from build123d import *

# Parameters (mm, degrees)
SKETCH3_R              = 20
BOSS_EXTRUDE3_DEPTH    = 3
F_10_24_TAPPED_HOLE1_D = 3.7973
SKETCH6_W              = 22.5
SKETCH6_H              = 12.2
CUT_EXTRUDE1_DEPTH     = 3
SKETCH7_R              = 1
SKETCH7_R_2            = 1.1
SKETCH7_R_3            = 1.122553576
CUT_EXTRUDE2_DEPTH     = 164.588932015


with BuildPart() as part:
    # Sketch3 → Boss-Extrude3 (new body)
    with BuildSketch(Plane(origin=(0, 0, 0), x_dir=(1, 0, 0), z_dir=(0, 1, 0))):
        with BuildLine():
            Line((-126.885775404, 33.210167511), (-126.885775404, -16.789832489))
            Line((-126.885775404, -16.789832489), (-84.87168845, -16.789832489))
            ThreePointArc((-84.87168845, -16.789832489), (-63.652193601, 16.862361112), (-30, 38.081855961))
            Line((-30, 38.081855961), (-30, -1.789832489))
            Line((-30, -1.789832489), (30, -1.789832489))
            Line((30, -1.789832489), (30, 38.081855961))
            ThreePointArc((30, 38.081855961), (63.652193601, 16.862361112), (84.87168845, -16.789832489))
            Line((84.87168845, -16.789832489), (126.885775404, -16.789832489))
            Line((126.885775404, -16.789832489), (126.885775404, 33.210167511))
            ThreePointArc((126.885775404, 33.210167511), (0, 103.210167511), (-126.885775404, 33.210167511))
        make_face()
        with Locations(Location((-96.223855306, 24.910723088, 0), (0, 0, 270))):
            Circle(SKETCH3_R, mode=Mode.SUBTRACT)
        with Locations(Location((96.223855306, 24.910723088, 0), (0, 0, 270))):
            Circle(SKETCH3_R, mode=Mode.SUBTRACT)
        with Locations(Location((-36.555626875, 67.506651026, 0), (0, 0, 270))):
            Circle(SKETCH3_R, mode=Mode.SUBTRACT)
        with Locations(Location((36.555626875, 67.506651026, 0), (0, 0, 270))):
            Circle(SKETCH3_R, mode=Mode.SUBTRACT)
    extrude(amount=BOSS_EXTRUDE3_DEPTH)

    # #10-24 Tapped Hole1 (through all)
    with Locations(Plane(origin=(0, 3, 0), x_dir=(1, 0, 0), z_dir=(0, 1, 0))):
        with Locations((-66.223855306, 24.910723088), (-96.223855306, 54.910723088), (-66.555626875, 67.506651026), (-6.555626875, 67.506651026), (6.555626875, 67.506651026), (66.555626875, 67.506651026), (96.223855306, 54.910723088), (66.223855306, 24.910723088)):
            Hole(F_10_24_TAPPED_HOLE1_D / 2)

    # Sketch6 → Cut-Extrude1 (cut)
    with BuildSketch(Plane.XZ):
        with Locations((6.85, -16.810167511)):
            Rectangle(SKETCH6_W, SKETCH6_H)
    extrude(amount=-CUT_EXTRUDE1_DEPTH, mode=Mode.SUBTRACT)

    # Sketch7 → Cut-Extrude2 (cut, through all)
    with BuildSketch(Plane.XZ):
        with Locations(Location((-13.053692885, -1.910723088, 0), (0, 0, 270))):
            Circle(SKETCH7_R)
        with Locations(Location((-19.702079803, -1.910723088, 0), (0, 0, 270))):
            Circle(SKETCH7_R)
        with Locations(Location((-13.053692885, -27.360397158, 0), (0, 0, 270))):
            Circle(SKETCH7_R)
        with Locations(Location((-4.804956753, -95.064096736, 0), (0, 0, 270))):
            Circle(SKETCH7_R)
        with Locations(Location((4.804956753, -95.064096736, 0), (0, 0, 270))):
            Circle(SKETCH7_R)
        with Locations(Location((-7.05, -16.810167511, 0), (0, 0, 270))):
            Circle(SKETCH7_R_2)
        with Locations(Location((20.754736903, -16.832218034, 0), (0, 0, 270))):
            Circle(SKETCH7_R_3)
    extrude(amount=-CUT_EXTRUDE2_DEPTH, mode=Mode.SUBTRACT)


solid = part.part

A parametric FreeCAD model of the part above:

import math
import FreeCAD as App
import Part
import Sketcher
from FreeCAD import Vector
Q = App.Units.Quantity


def add_polygon(sketch, points):
    """Adds a closed chain of lines whose ends are joined by coincident constraints."""
    first, n = sketch.GeometryCount, len(points)
    for a, b in zip(points, points[1:] + points[:1]):
        sketch.addGeometry(Part.LineSegment(App.Vector(*a, 0), App.Vector(*b, 0)), False)
    for i in range(n):
        sketch.addConstraint(Sketcher.Constraint("Coincident", first + i, 2, first + (i + 1) % n, 1))

doc = App.newDocument("Part")
params = doc.addObject("Spreadsheet::Sheet", "Params")
for row, (alias, value) in enumerate([
    ("sketch1_diameter", "40 mm"),
    ("sketch1_radius", "150 mm"),
    ("sketch1_width", "60 mm"),
    ("sketch1_height", "50 mm"),
    ("pad1_length", "3 mm"),
    ("hole_diameter", "3.7973 mm"),
    ("sketch3_width", "22.5 mm"),
    ("sketch3_height", "12.2 mm"),
    ("pocket1_length", "3 mm"),
    ("sketch4_diameter", "2 mm"),
    ("sketch4_diameter2", "2.2 mm"),
], start=1):
    params.set(f"A{row}", alias)
    params.set(f"B{row}", "=" + value)
    params.setAlias(f"B{row}", alias)

body = doc.addObject("PartDesign::Body", "Body")

sketch1 = body.newObject("Sketcher::SketchObject", "Sketch")
sketch1.AttachmentSupport = (doc.getObject("XZ_Plane"), [""])
sketch1.MapMode = "FlatFace"
sketch1.addGeometry(Part.LineSegment(Vector(-127, -33, 0), Vector(-127, 17, 0)), False)
sketch1.addGeometry(Part.LineSegment(Vector(-127, 17, 0), Vector(-85, 17, 0)), False)
sketch1.addGeometry(Part.ArcOfCircle(Part.Circle(Vector(0, 47, 0), Vector(0, 0, 1), 90), math.radians(-161), math.radians(-109)), False)
sketch1.addGeometry(Part.LineSegment(Vector(-30, -38, 0), Vector(-30, 2, 0)), False)
sketch1.addGeometry(Part.LineSegment(Vector(-30, 2, 0), Vector(30, 2, 0)), False)
sketch1.addGeometry(Part.LineSegment(Vector(30, 2, 0), Vector(30, -38, 0)), False)
sketch1.addGeometry(Part.ArcOfCircle(Part.Circle(Vector(0, 47, 0), Vector(0, 0, 1), 90), math.radians(-71), math.radians(-19)), False)
sketch1.addGeometry(Part.LineSegment(Vector(85, 17, 0), Vector(127, 17, 0)), False)
sketch1.addGeometry(Part.LineSegment(Vector(127, 17, 0), Vector(127, -33, 0)), False)
sketch1.addGeometry(Part.ArcOfCircle(Part.Circle(Vector(0, 47, 0), Vector(0, 0, 1), 150), math.radians(-148), math.radians(-32)), False)
sketch1.addGeometry(Part.Circle(Vector(-96, -25, 0), Vector(0, 0, 1), 20), False)
sketch1.addGeometry(Part.Circle(Vector(96, -25, 0), Vector(0, 0, 1), 20), False)
sketch1.addGeometry(Part.Circle(Vector(-37, -68, 0), Vector(0, 0, 1), 20), False)
sketch1.addGeometry(Part.Circle(Vector(37, -68, 0), Vector(0, 0, 1), 20), False)
sketch1.addConstraint(Sketcher.Constraint("Coincident", 0, 2, 1, 1))
sketch1.addConstraint(Sketcher.Constraint("Coincident", 1, 2, 2, 1))
sketch1.addConstraint(Sketcher.Constraint("Coincident", 2, 2, 3, 1))
sketch1.addConstraint(Sketcher.Constraint("Coincident", 3, 2, 4, 1))
sketch1.addConstraint(Sketcher.Constraint("Coincident", 4, 2, 5, 1))
sketch1.addConstraint(Sketcher.Constraint("Coincident", 5, 2, 6, 1))
sketch1.addConstraint(Sketcher.Constraint("Coincident", 6, 2, 7, 1))
sketch1.addConstraint(Sketcher.Constraint("Coincident", 7, 2, 8, 1))
sketch1.addConstraint(Sketcher.Constraint("Coincident", 8, 2, 9, 2))
sketch1.addConstraint(Sketcher.Constraint("Coincident", 9, 1, 0, 1))
sketch1.addConstraint(Sketcher.Constraint("Vertical", 0))
sketch1.addConstraint(Sketcher.Constraint("Horizontal", 1))
sketch1.addConstraint(Sketcher.Constraint("Vertical", 3))
sketch1.addConstraint(Sketcher.Constraint("Horizontal", 4))
sketch1.addConstraint(Sketcher.Constraint("Vertical", 5))
sketch1.addConstraint(Sketcher.Constraint("Horizontal", 7))
sketch1.addConstraint(Sketcher.Constraint("Vertical", 8))
sketch1.addConstraint(Sketcher.Constraint("Coincident", 6, 3, 2, 3))
sketch1.addConstraint(Sketcher.Constraint("Coincident", 9, 3, 2, 3))
sketch1.addConstraint(Sketcher.Constraint("Equal", 2, 6))
sketch1.addConstraint(Sketcher.Constraint("Equal", 10, 11))
sketch1.addConstraint(Sketcher.Constraint("Equal", 11, 12))
sketch1.addConstraint(Sketcher.Constraint("Equal", 12, 13))
sketch1.addConstraint(Sketcher.Constraint("Symmetric", 10, 3, 11, 3, -2))
sketch1.addConstraint(Sketcher.Constraint("Symmetric", 12, 3, 13, 3, -2))
sketch1.addConstraint(Sketcher.Constraint("Symmetric", 2, 2, 5, 2, -2))
sketch1.addConstraint(Sketcher.Constraint("Symmetric", 0, 2, 7, 2, -2))
sketch1.addConstraint(Sketcher.Constraint("Diameter", 10, Q("40 mm")))
sketch1.addConstraint(Sketcher.Constraint("Radius", 9, Q("150 mm")))
sketch1.addConstraint(Sketcher.Constraint("DistanceX", 4, 1, 4, 2, Q("60 mm")))
sketch1.addConstraint(Sketcher.Constraint("DistanceY", 0, 1, 0, 2, Q("50 mm")))
sketch1.addConstraint(Sketcher.Constraint("DistanceY", 0, 2, 2, 3, Q("30 mm")))
sketch1.addConstraint(Sketcher.Constraint("DistanceY", 3, 2, 2, 3, Q("45 mm")))
sketch1.addConstraint(Sketcher.Constraint("Radius", 2, Q("90.017795 mm")))
sketch1.addConstraint(Sketcher.Constraint("DistanceY", 12, 3, -1, 1, Q("67.506651 mm")))
sketch1.addConstraint(Sketcher.Constraint("DistanceX", 10, 3, 11, 3, Q("192.447711 mm")))
sketch1.addConstraint(Sketcher.Constraint("DistanceX", 10, 3, 12, 3, Q("59.668228 mm")))
sketch1.addConstraint(Sketcher.Constraint("DistanceY", -1, 1, 2, 3, Q("46.789832 mm")))
sketch1.addConstraint(Sketcher.Constraint("DistanceY", 10, 3, -1, 1, Q("24.910723 mm")))
sketch1.setExpression("Constraints[27]", "Params.sketch1_diameter")
sketch1.setExpression("Constraints[28]", "Params.sketch1_radius")
sketch1.setExpression("Constraints[29]", "Params.sketch1_width")
sketch1.setExpression("Constraints[30]", "Params.sketch1_height")
pad1 = body.newObject("PartDesign::Pad", "Pad")
pad1.Profile = sketch1
pad1.setExpression("Length", "Params.pad1_length")
pad1.Reversed = True

sketch2 = body.newObject("Sketcher::SketchObject", "Sketch001")
sketch2.AttachmentSupport = (doc.getObject("XZ_Plane"), [""])
sketch2.MapMode = "FlatFace"
sketch2.AttachmentOffset = App.Placement(Vector(0, 0, -3), App.Rotation())
sketch2.addGeometry(Part.Circle(Vector(-66.2, -24.9, 0), Vector(0, 0, 1), 1.9), False)
sketch2.addGeometry(Part.Circle(Vector(-96.2, -54.9, 0), Vector(0, 0, 1), 1.9), False)
sketch2.addGeometry(Part.Circle(Vector(-66.6, -67.5, 0), Vector(0, 0, 1), 1.9), False)
sketch2.addGeometry(Part.Circle(Vector(-6.6, -67.5, 0), Vector(0, 0, 1), 1.9), False)
sketch2.addGeometry(Part.Circle(Vector(6.6, -67.5, 0), Vector(0, 0, 1), 1.9), False)
sketch2.addGeometry(Part.Circle(Vector(66.6, -67.5, 0), Vector(0, 0, 1), 1.9), False)
sketch2.addGeometry(Part.Circle(Vector(96.2, -54.9, 0), Vector(0, 0, 1), 1.9), False)
sketch2.addGeometry(Part.Circle(Vector(66.2, -24.9, 0), Vector(0, 0, 1), 1.9), False)
sketch2.addConstraint(Sketcher.Constraint("Equal", 0, 1))
sketch2.addConstraint(Sketcher.Constraint("Equal", 1, 2))
sketch2.addConstraint(Sketcher.Constraint("Equal", 2, 3))
sketch2.addConstraint(Sketcher.Constraint("Equal", 3, 4))
sketch2.addConstraint(Sketcher.Constraint("Equal", 4, 5))
sketch2.addConstraint(Sketcher.Constraint("Equal", 5, 6))
sketch2.addConstraint(Sketcher.Constraint("Equal", 6, 7))
sketch2.addConstraint(Sketcher.Constraint("Symmetric", 3, 3, 4, 3, -2))
sketch2.addConstraint(Sketcher.Constraint("Symmetric", 2, 3, 5, 3, -2))
sketch2.addConstraint(Sketcher.Constraint("Symmetric", 1, 3, 6, 3, -2))
sketch2.addConstraint(Sketcher.Constraint("Symmetric", 0, 3, 7, 3, -2))
sketch2.addConstraint(Sketcher.Constraint("Horizontal", 2, 3, 3, 3))
sketch2.addConstraint(Sketcher.Constraint("DistanceX", 1, 3, 0, 3, Q("30 mm")))
sketch2.addConstraint(Sketcher.Constraint("DistanceY", 1, 3, 0, 3, Q("30 mm")))
sketch2.addConstraint(Sketcher.Constraint("DistanceX", 2, 3, 3, 3, Q("60 mm")))
sketch2.addConstraint(Sketcher.Constraint("Diameter", 0, Q("3.7973 mm")))
sketch2.addConstraint(Sketcher.Constraint("DistanceY", 2, 3, -1, 1, Q("67.506651 mm")))
sketch2.addConstraint(Sketcher.Constraint("DistanceX", 1, 3, 2, 3, Q("29.668228 mm")))
sketch2.addConstraint(Sketcher.Constraint("DistanceX", 0, 3, 6, 3, Q("162.447711 mm")))
sketch2.addConstraint(Sketcher.Constraint("DistanceY", 0, 3, -1, 1, Q("24.910723 mm")))
doc.recompute()
hole = body.newObject("PartDesign::Hole", "Hole")
hole.Profile = sketch2
hole.ThreadType = "None"
hole.setExpression("Diameter", "Params.hole_diameter")
hole.DepthType = "ThroughAll"
hole.Reversed = True

sketch3 = body.newObject("Sketcher::SketchObject", "Sketch002")
sketch3.AttachmentSupport = (doc.getObject("XZ_Plane"), [""])
sketch3.MapMode = "FlatFace"
add_polygon(sketch3, [(-4, -11), (-4, -23), (18, -23), (18, -11)])
sketch3.addConstraint(Sketcher.Constraint("Vertical", 0))
sketch3.addConstraint(Sketcher.Constraint("Horizontal", 1))
sketch3.addConstraint(Sketcher.Constraint("Vertical", 2))
sketch3.addConstraint(Sketcher.Constraint("Horizontal", 3))
sketch3.addConstraint(Sketcher.Constraint("DistanceX", 1, 1, 1, 2, Q("22.5 mm")))
sketch3.addConstraint(Sketcher.Constraint("DistanceY", 0, 2, 0, 1, Q("12.2 mm")))
sketch3.addConstraint(Sketcher.Constraint("DistanceX", 0, 2, -1, 1, Q("4.4 mm")))
sketch3.addConstraint(Sketcher.Constraint("DistanceY", 0, 2, -1, 1, Q("22.910168 mm")))
sketch3.setExpression("Constraints[8]", "Params.sketch3_width")
sketch3.setExpression("Constraints[9]", "Params.sketch3_height")
pocket1 = body.newObject("PartDesign::Pocket", "Pocket")
pocket1.Profile = sketch3
pocket1.setExpression("Length", "Params.pocket1_length")

sketch4 = body.newObject("Sketcher::SketchObject", "Sketch003")
sketch4.AttachmentSupport = (doc.getObject("XZ_Plane"), [""])
sketch4.MapMode = "FlatFace"
sketch4.addGeometry(Part.Circle(Vector(-13.1, -1.9, 0), Vector(0, 0, 1), 1), False)
sketch4.addGeometry(Part.Circle(Vector(-19.7, -1.9, 0), Vector(0, 0, 1), 1), False)
sketch4.addGeometry(Part.Circle(Vector(-13.1, -27.4, 0), Vector(0, 0, 1), 1), False)
sketch4.addGeometry(Part.Circle(Vector(-4.8, -95.1, 0), Vector(0, 0, 1), 1), False)
sketch4.addGeometry(Part.Circle(Vector(4.8, -95.1, 0), Vector(0, 0, 1), 1), False)
sketch4.addGeometry(Part.Circle(Vector(-7, -16.8, 0), Vector(0, 0, 1), 1.1), False)
sketch4.addGeometry(Part.Circle(Vector(20.8, -16.8, 0), Vector(0, 0, 1), 1.1), False)
sketch4.addConstraint(Sketcher.Constraint("Equal", 0, 1))
sketch4.addConstraint(Sketcher.Constraint("Equal", 1, 2))
sketch4.addConstraint(Sketcher.Constraint("Equal", 2, 3))
sketch4.addConstraint(Sketcher.Constraint("Equal", 3, 4))
sketch4.addConstraint(Sketcher.Constraint("Symmetric", 3, 3, 4, 3, -2))
sketch4.addConstraint(Sketcher.Constraint("Horizontal", 0, 3, 1, 3))
sketch4.addConstraint(Sketcher.Constraint("Vertical", 0, 3, 2, 3))
sketch4.addConstraint(Sketcher.Constraint("Diameter", 0, Q("2 mm")))
sketch4.addConstraint(Sketcher.Constraint("Diameter", 5, Q("2.2 mm")))
sketch4.addConstraint(Sketcher.Constraint("DistanceX", 5, 3, -1, 1, Q("7.05 mm")))
sketch4.addConstraint(Sketcher.Constraint("Diameter", 6, Q("2.245107 mm")))
sketch4.addConstraint(Sketcher.Constraint("DistanceY", 3, 3, 2, 3, Q("67.7037 mm")))
sketch4.addConstraint(Sketcher.Constraint("DistanceX", 1, 3, -1, 1, Q("19.70208 mm")))
sketch4.addConstraint(Sketcher.Constraint("DistanceY", 6, 3, -1, 1, Q("16.832218 mm")))
sketch4.addConstraint(Sketcher.Constraint("DistanceX", 2, 3, 4, 3, Q("17.85865 mm")))
sketch4.addConstraint(Sketcher.Constraint("DistanceY", 2, 3, 5, 3, Q("10.55023 mm")))
sketch4.addConstraint(Sketcher.Constraint("DistanceY", 6, 3, 5, 3, Q("0.022051 mm")))
sketch4.addConstraint(Sketcher.Constraint("DistanceX", 2, 3, 6, 3, Q("33.80843 mm")))
sketch4.addConstraint(Sketcher.Constraint("DistanceX", 0, 3, -1, 1, Q("13.053693 mm")))
sketch4.addConstraint(Sketcher.Constraint("DistanceY", 0, 3, -1, 1, Q("1.910723 mm")))
sketch4.setExpression("Constraints[7]", "Params.sketch4_diameter")
sketch4.setExpression("Constraints[8]", "Params.sketch4_diameter2")
pocket2 = body.newObject("PartDesign::Pocket", "Pocket001")
pocket2.Profile = sketch4
pocket2.Type = "ThroughAll"

doc.recompute()
